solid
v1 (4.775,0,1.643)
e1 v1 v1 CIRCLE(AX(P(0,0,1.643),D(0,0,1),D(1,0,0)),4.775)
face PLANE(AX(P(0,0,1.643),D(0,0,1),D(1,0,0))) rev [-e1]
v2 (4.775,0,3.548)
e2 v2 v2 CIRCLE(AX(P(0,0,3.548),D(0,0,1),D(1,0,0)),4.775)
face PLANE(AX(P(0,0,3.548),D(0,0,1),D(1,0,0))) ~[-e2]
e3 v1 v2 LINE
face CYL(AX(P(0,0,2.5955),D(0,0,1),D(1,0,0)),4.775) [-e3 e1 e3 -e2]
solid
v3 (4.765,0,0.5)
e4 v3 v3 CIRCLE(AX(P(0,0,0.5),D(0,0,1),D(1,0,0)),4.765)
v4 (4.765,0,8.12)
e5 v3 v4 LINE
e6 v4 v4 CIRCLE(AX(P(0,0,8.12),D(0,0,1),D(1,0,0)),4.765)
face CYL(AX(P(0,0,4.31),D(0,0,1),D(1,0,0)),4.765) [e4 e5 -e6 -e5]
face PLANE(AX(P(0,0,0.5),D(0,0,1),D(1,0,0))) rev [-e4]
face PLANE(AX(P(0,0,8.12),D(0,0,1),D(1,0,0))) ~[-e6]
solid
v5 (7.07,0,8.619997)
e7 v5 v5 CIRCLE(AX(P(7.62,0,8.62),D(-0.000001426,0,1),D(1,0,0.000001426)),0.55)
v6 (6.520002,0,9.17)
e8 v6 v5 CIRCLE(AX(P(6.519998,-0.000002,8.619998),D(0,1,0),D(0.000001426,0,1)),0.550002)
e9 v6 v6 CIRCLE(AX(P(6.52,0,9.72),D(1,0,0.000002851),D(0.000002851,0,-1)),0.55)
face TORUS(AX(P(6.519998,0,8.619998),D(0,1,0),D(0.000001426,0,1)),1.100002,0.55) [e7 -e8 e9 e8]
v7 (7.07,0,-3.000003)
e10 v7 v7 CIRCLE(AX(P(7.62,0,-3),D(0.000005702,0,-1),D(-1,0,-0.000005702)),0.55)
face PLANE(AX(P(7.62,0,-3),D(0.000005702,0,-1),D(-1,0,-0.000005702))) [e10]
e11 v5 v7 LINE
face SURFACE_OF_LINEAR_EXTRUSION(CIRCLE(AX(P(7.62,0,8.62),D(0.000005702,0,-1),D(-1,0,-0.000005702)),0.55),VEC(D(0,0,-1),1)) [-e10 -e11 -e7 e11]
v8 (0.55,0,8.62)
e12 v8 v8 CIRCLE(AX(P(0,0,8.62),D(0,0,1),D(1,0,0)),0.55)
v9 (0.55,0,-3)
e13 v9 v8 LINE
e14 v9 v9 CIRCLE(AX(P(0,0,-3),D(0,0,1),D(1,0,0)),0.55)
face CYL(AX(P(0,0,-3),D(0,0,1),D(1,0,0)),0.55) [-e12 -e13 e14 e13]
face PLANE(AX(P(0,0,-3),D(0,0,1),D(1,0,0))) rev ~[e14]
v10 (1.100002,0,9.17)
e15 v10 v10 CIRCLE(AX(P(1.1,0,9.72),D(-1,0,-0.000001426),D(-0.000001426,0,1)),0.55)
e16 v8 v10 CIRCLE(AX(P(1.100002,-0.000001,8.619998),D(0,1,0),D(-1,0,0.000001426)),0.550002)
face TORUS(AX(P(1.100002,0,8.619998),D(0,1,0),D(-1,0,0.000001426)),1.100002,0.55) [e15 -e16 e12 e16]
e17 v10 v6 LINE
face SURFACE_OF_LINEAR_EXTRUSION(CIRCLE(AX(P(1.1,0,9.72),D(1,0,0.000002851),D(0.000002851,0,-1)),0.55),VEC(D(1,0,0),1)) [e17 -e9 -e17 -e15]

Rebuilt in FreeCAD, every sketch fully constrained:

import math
import FreeCAD as App
import Part
import Sketcher
Q = App.Units.Quantity

doc = App.newDocument("Part")
body = doc.addObject("PartDesign::Body", "Body")

# Sketch on XY plane
sketch1 = body.newObject("Sketcher::SketchObject", "Sketch")
sketch1.AttachmentSupport = (doc.getObject("XY_Plane"), [""])
sketch1.MapMode = "FlatFace"
sketch1.addGeometry(Part.Circle(App.Vector(0, 0, 0), App.Vector(0, 0, 1), 0.55), False)
sketch1.addConstraint([
    Sketcher.Constraint("Coincident", 0, 3, -1, 1),
    Sketcher.Constraint("Diameter", 0, 1.1),
])

# Sketch on XZ plane
sketch2 = body.newObject("Sketcher::SketchObject", "Sketch001")
sketch2.AttachmentSupport = (doc.getObject("XZ_Plane"), [""])
sketch2.MapMode = "FlatFace"
sketch2.addGeometry([
    Part.LineSegment(App.Vector(0, -3, 0), App.Vector(0, 8.62, 0)),  # 0
    Part.ArcOfCircle(Part.Circle(App.Vector(1.100002, 8.619998, 0), App.Vector(0, 0, 1), 1.100002), math.radians(90.000082), math.radians(179.999918)),  # 1
    Part.LineSegment(App.Vector(1.1, 9.72, 0), App.Vector(6.52, 9.72, 0)),  # 2
    Part.ArcOfCircle(Part.Circle(App.Vector(6.519998, 8.619998, 0), App.Vector(0, 0, 1), 1.100002), math.radians(0.000082), math.radians(89.999918)),  # 3
    Part.LineSegment(App.Vector(7.62, 8.62, 0), App.Vector(7.62, -3, 0)),  # 4
], False)
sketch2.addConstraint([
    Sketcher.Constraint("Tangent", 0, 2, 1, 2),
    Sketcher.Constraint("Tangent", 1, 1, 2, 1),
    Sketcher.Constraint("Tangent", 2, 2, 3, 2),
    Sketcher.Constraint("Tangent", 3, 1, 4, 1),
    Sketcher.Constraint("Vertical", 0),
    Sketcher.Constraint("Horizontal", 2),
    Sketcher.Constraint("Vertical", 4),
    Sketcher.Constraint("Equal", 1, 3),
    Sketcher.Constraint("PointOnObject", 0, 1, -2),
    Sketcher.Constraint("Horizontal", 0, 1, 4, 2),
    Sketcher.Constraint("DistanceX", -1, 1, 3, 1, Q("0.3 in")),
    Sketcher.Constraint("Radius", 1, 1.100002),
    Sketcher.Constraint("DistanceY", 0, 1, 0, 2, 11.62),
    Sketcher.Constraint("DistanceY", -1, 1, 1, 3, 8.619998),
])
doc.recompute()

additivepipe = body.newObject("PartDesign::AdditivePipe", "AdditivePipe")
additivepipe.Profile = sketch1
additivepipe.Spine = (sketch2, ["Edge1", "Edge2", "Edge3", "Edge4", "Edge5"])
body2 = doc.addObject("PartDesign::Body", "Body001")

# Sketch on XZ plane
sketch3 = body2.newObject("Sketcher::SketchObject", "Sketch002")
sketch3.AttachmentSupport = (doc.getObject("XZ_Plane001"), [""])
sketch3.MapMode = "FlatFace"
sketch3.addGeometry([
    Part.LineSegment(App.Vector(0, 8.12, 0), App.Vector(0, 0.5, 0)),
    Part.LineSegment(App.Vector(0, 0.5, 0), App.Vector(4.765, 0.5, 0)),
    Part.LineSegment(App.Vector(4.765, 0.5, 0), App.Vector(4.765, 8.12, 0)),
    Part.LineSegment(App.Vector(4.765, 8.12, 0), App.Vector(0, 8.12, 0)),
], False)
sketch3.addConstraint([
    Sketcher.Constraint("Coincident", 0, 2, 1, 1),
    Sketcher.Constraint("Coincident", 1, 2, 2, 1),
    Sketcher.Constraint("Coincident", 2, 2, 3, 1),
    Sketcher.Constraint("Coincident", 3, 2, 0, 1),
    Sketcher.Constraint("Vertical", 0),
    Sketcher.Constraint("Horizontal", 1),
    Sketcher.Constraint("Vertical", 2),
    Sketcher.Constraint("Horizontal", 3),
    Sketcher.Constraint("PointOnObject", 0, 2, -2),
    Sketcher.Constraint("DistanceY", 0, 2, 0, 1, Q("0.3 in")),
    Sketcher.Constraint("DistanceX", 1, 1, 1, 2, 4.765),
    Sketcher.Constraint("DistanceY", -1, 1, 0, 2, 0.5),
])
revolution = body2.newObject("PartDesign::Revolution", "Revolution")
revolution.Profile = sketch3
revolution.ReferenceAxis = (sketch3, ["V_Axis"])
revolution.Angle = 360
body3 = doc.addObject("PartDesign::Body", "Body002")

# Sketch on XZ plane
sketch4 = body3.newObject("Sketcher::SketchObject", "Sketch003")
sketch4.AttachmentSupport = (doc.getObject("XZ_Plane002"), [""])
sketch4.MapMode = "FlatFace"
sketch4.addGeometry([
    Part.LineSegment(App.Vector(0, 3.548, 0), App.Vector(0, 1.643, 0)),
    Part.LineSegment(App.Vector(0, 1.643, 0), App.Vector(4.775, 1.643, 0)),
    Part.LineSegment(App.Vector(4.775, 1.643, 0), App.Vector(4.775, 3.548, 0)),
    Part.LineSegment(App.Vector(4.775, 3.548, 0), App.Vector(0, 3.548, 0)),
], False)
sketch4.addConstraint([
    Sketcher.Constraint("Coincident", 0, 2, 1, 1),
    Sketcher.Constraint("Coincident", 1, 2, 2, 1),
    Sketcher.Constraint("Coincident", 2, 2, 3, 1),
    Sketcher.Constraint("Coincident", 3, 2, 0, 1),
    Sketcher.Constraint("Vertical", 0),
    Sketcher.Constraint("Horizontal", 1),
    Sketcher.Constraint("Vertical", 2),
    Sketcher.Constraint("Horizontal", 3),
    Sketcher.Constraint("PointOnObject", 0, 2, -2),
    Sketcher.Constraint("DistanceY", 0, 2, 0, 1, Q("0.075 in")),
    Sketcher.Constraint("DistanceX", 1, 1, 1, 2, 4.775),
    Sketcher.Constraint("DistanceY", -1, 1, 0, 2, 1.643),
])
revolution2 = body3.newObject("PartDesign::Revolution", "Revolution001")
revolution2.Profile = sketch4
revolution2.ReferenceAxis = (sketch4, ["V_Axis"])
revolution2.Angle = 360

doc.recompute()
